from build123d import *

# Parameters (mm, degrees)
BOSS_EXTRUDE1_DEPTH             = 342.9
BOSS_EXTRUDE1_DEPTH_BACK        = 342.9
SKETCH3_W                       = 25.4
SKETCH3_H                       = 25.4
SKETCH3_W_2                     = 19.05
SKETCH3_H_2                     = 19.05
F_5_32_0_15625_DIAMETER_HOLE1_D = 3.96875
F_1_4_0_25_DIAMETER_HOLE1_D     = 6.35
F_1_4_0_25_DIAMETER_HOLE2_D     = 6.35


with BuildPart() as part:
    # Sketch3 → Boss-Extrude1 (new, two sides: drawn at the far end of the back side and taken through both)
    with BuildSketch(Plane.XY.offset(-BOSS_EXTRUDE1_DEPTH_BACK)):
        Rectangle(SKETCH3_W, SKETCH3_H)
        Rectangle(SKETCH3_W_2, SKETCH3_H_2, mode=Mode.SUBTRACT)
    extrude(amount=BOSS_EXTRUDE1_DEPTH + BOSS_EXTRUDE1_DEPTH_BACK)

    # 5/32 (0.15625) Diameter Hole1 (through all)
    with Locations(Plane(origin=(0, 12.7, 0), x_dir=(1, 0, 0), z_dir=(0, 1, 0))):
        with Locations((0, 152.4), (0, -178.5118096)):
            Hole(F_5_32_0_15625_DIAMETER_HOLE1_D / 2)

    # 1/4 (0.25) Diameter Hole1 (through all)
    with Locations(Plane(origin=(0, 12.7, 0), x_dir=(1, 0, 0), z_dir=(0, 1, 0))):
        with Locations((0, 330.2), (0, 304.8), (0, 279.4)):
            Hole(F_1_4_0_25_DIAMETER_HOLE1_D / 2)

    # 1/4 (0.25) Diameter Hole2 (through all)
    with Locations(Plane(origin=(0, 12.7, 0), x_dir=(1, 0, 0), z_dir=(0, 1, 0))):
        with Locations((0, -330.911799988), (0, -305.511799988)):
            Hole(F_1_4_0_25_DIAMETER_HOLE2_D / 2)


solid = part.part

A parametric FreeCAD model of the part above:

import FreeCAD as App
import Part
import Sketcher

V = App.Vector
Q = App.Units.Quantity


def add_polygon(sketch, points):
    """Adds a closed chain of lines whose ends are joined by coincident constraints."""
    first, n = sketch.GeometryCount, len(points)
    for a, b in zip(points, points[1:] + points[:1]):
        sketch.addGeometry(Part.LineSegment(App.Vector(*a, 0), App.Vector(*b, 0)), False)
    for i in range(n):
        sketch.addConstraint(Sketcher.Constraint("Coincident", first + i, 2, first + (i + 1) % n, 1))

doc = App.newDocument("Part")
body = doc.addObject("PartDesign::Body", "Body")

# Sketch on XY plane
sketch1 = doc.addObject("Sketcher::SketchObject", "Sketch")
body.addObject(sketch1)
sketch1.AttachmentSupport = (doc.XY_Plane, [""])
sketch1.MapMode = "FlatFace"
add_polygon(sketch1, [(-13, 13), (-13, -13), (13, -13), (13, 13)])  # lines 0-3
add_polygon(sketch1, [(10, -10), (-10, -10), (-10, 10), (10, 10)])  # lines 4-7
sketch1.addConstraint(Sketcher.Constraint("Vertical", 0))
sketch1.addConstraint(Sketcher.Constraint("Horizontal", 1))
sketch1.addConstraint(Sketcher.Constraint("Vertical", 2))
sketch1.addConstraint(Sketcher.Constraint("Horizontal", 3))
sketch1.addConstraint(Sketcher.Constraint("Horizontal", 4))
sketch1.addConstraint(Sketcher.Constraint("Vertical", 5))
sketch1.addConstraint(Sketcher.Constraint("Horizontal", 6))
sketch1.addConstraint(Sketcher.Constraint("Vertical", 7))
sketch1.addConstraint(Sketcher.Constraint("Symmetric", 0, 2, 2, 2, -1, 1))
sketch1.addConstraint(Sketcher.Constraint("Symmetric", 4, 2, 6, 2, -1, 1))
sketch1.addConstraint(Sketcher.Constraint("Equal", 3, 0))
sketch1.addConstraint(Sketcher.Constraint("Equal", 6, 5))
sketch1.addConstraint(Sketcher.Constraint("DistanceX", 1, 1, 1, 2, Q("1 in")))
sketch1.addConstraint(Sketcher.Constraint("DistanceX", 4, 2, 4, 1, Q("0.75 in")))
pad1 = doc.addObject("PartDesign::Pad", "Pad")
body.addObject(pad1)
pad1.Profile = sketch1
pad1.Type = "TwoLengths"
pad1.Length = Q("13.5 in")
pad1.Length2 = Q("13.5 in")

# Sketch on XZ plane
sketch2 = doc.addObject("Sketcher::SketchObject", "Sketch001")
body.addObject(sketch2)
sketch2.AttachmentSupport = (doc.XZ_Plane, [""])
sketch2.MapMode = "FlatFace"
sketch2.AttachmentOffset = App.Placement(V(0, 0, -0.5 * 25.4), App.Rotation())
sketch2.addGeometry(Part.Circle(V(0, -152.4, 0), V(0, 0, 1), 2), False)
sketch2.addGeometry(Part.Circle(V(0, 178.5, 0), V(0, 0, 1), 2), False)
sketch2.addConstraint(Sketcher.Constraint("Equal", 0, 1))
sketch2.addConstraint(Sketcher.Constraint("PointOnObject", 0, 3, -2))
sketch2.addConstraint(Sketcher.Constraint("PointOnObject", 1, 3, -2))
sketch2.addConstraint(Sketcher.Constraint("Diameter", 0, Q("0.15625 in")))
sketch2.addConstraint(Sketcher.Constraint("DistanceY", 0, 3, -1, 1, Q("6 in")))
sketch2.addConstraint(Sketcher.Constraint("DistanceY", -1, 1, 1, 3, Q("178.51181 mm")))
doc.recompute()
hole = doc.addObject("PartDesign::Hole", "Hole")
body.addObject(hole)
hole.Profile = sketch2
hole.ThreadType = "None"
hole.Diameter = Q("0.15625 in")
hole.DepthType = "ThroughAll"
hole.Reversed = True

# Sketch on XZ plane
sketch3 = doc.addObject("Sketcher::SketchObject", "Sketch002")
body.addObject(sketch3)
sketch3.AttachmentSupport = (doc.XZ_Plane, [""])
sketch3.MapMode = "FlatFace"
sketch3.AttachmentOffset = App.Placement(V(0, 0, -0.5 * 25.4), App.Rotation())
sketch3.addGeometry(Part.Circle(V(0, -330.2, 0), V(0, 0, 1), 3.2), False)
sketch3.addGeometry(Part.Circle(V(0, -304.8, 0), V(0, 0, 1), 3.2), False)
sketch3.addGeometry(Part.Circle(V(0, -279.4, 0), V(0, 0, 1), 3.2), False)
sketch3.addConstraint(Sketcher.Constraint("Equal", 0, 1))
sketch3.addConstraint(Sketcher.Constraint("Equal", 1, 2))
sketch3.addConstraint(Sketcher.Constraint("PointOnObject", 0, 3, -2))
sketch3.addConstraint(Sketcher.Constraint("PointOnObject", 1, 3, -2))
sketch3.addConstraint(Sketcher.Constraint("PointOnObject", 2, 3, -2))
sketch3.addConstraint(Sketcher.Constraint("Diameter", 0, Q("0.25 in")))
sketch3.addConstraint(Sketcher.Constraint("DistanceY", 0, 3, -1, 1, Q("13 in")))
sketch3.addConstraint(Sketcher.Constraint("DistanceY", 1, 3, -1, 1, Q("12 in")))
sketch3.addConstraint(Sketcher.Constraint("DistanceY", 2, 3, -1, 1, Q("11 in")))
doc.recompute()
hole2 = doc.addObject("PartDesign::Hole", "Hole001")
body.addObject(hole2)
hole2.Profile = sketch3
hole2.ThreadType = "None"
hole2.Diameter = Q("0.25 in")
hole2.DepthType = "ThroughAll"
hole2.Reversed = True

# Sketch on XZ plane
sketch4 = doc.addObject("Sketcher::SketchObject", "Sketch003")
body.addObject(sketch4)
sketch4.AttachmentSupport = (doc.XZ_Plane, [""])
sketch4.MapMode = "FlatFace"
sketch4.AttachmentOffset = App.Placement(V(0, 0, -0.5 * 25.4), App.Rotation())
sketch4.addGeometry(Part.Circle(V(0, 330.9, 0), V(0, 0, 1), 3.2), False)
sketch4.addGeometry(Part.Circle(V(0, 305.5, 0), V(0, 0, 1), 3.2), False)
sketch4.addConstraint(Sketcher.Constraint("Equal", 0, 1))
sketch4.addConstraint(Sketcher.Constraint("PointOnObject", 0, 3, -2))
sketch4.addConstraint(Sketcher.Constraint("PointOnObject", 1, 3, -2))
sketch4.addConstraint(Sketcher.Constraint("Diameter", 0, Q("0.25 in")))
sketch4.addConstraint(Sketcher.Constraint("DistanceY", 1, 3, 0, 3, Q("1 in")))
sketch4.addConstraint(Sketcher.Constraint("DistanceY", -1, 1, 0, 3, Q("330.9118 mm")))
doc.recompute()
hole3 = doc.addObject("PartDesign::Hole", "Hole002")
body.addObject(hole3)
hole3.Profile = sketch4
hole3.ThreadType = "None"
hole3.Diameter = Q("0.25 in")
hole3.DepthType = "ThroughAll"
hole3.Reversed = True

doc.recompute()
